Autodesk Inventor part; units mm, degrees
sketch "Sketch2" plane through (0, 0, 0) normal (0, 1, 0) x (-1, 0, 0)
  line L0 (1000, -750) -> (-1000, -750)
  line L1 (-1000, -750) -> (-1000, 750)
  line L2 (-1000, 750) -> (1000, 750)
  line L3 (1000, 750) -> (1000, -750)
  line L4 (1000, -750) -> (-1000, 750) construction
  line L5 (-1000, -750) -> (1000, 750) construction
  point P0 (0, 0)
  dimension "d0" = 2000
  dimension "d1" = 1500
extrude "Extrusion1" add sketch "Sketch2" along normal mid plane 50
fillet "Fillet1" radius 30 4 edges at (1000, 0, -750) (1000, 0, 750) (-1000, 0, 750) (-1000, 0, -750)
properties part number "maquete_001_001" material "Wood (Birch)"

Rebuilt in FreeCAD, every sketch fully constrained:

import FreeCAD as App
import Part
import Sketcher
from FreeCAD import Vector
Q = App.Units.Quantity


def edges_at(feature, points):
    """Names of the edges that pass closest to the given points."""
    edges = feature.Shape.Edges
    near = lambda p: min(range(len(edges)), key=lambda i: edges[i].distToShape(Part.Vertex(*p))[0])
    return sorted({f"Edge{near(p) + 1}" for p in points})

doc = App.newDocument("Part")
body = doc.addObject("PartDesign::Body", "Body")

# Sketch on XZ plane
sketch1 = body.newObject("Sketcher::SketchObject", "Sketch")
sketch1.AttachmentSupport = (doc.getObject("XZ_Plane"), [""])
sketch1.MapMode = "FlatFace"
sketch1.addGeometry([
    Part.LineSegment(Vector(1000, -750, 0), Vector(-1000, -750, 0)),
    Part.LineSegment(Vector(-1000, -750, 0), Vector(-1000, 750, 0)),
    Part.LineSegment(Vector(-1000, 750, 0), Vector(1000, 750, 0)),
    Part.LineSegment(Vector(1000, 750, 0), Vector(1000, -750, 0)),
], False)
sketch1.addConstraint([
    Sketcher.Constraint("Coincident", 0, 2, 1, 1),
    Sketcher.Constraint("Coincident", 1, 2, 2, 1),
    Sketcher.Constraint("Coincident", 2, 2, 3, 1),
    Sketcher.Constraint("Coincident", 3, 2, 0, 1),
    Sketcher.Constraint("Horizontal", 0),
    Sketcher.Constraint("Vertical", 1),
    Sketcher.Constraint("Horizontal", 2),
    Sketcher.Constraint("Vertical", 3),
    Sketcher.Constraint("Symmetric", 0, 2, 2, 2, -1, 1),
    Sketcher.Constraint("DistanceX", 0, 2, 0, 1, Q("2000 mm")),
    Sketcher.Constraint("DistanceY", 1, 1, 1, 2, Q("1500 mm")),
])
pad1 = body.newObject("PartDesign::Pad", "Pad")
pad1.Profile = sketch1
pad1.Length = 50
pad1.Midplane = True
doc.recompute()

fillet = body.newObject("PartDesign::Fillet", "Fillet")
fillet.Base = (pad1, edges_at(pad1, [
    (1000, 0, -750),
    (1000, 0, 750),
    (-1000, 0, 750),
    (-1000, 0, -750),
]))
fillet.Radius = 30

doc.recompute()
